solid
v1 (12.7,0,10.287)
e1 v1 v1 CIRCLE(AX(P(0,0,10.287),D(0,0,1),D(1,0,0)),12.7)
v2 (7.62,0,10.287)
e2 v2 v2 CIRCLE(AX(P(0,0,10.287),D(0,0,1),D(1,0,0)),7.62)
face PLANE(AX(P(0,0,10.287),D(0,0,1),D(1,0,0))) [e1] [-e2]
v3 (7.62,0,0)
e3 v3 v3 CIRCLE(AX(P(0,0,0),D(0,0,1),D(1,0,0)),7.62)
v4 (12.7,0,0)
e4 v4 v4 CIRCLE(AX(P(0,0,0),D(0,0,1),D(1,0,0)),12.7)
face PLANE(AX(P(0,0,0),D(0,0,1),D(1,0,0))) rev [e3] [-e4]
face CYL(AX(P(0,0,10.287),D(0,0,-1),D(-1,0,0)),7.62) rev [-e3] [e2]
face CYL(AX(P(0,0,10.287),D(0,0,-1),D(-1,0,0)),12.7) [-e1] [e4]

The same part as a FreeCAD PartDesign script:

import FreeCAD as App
import Part
import Sketcher
from FreeCAD import Vector
Q = App.Units.Quantity

doc = App.newDocument("Part")
body = doc.addObject("PartDesign::Body", "Body")

# Sketch on XY plane
sketch1 = body.newObject("Sketcher::SketchObject", "Sketch")
sketch1.AttachmentSupport = (doc.getObject("XY_Plane"), [""])
sketch1.MapMode = "FlatFace"
sketch1.addGeometry(Part.Circle(Vector(0, 0, 0), Vector(0, 0, 1), 13), False)
sketch1.addGeometry(Part.Circle(Vector(0, 0, 0), Vector(0, 0, 1), 8), False)
sketch1.addConstraint(Sketcher.Constraint("Coincident", 0, 3, -1, 1))
sketch1.addConstraint(Sketcher.Constraint("Coincident", 1, 3, -1, 1))
sketch1.addConstraint(Sketcher.Constraint("Diameter", 0, Q("1 in")))
sketch1.addConstraint(Sketcher.Constraint("Diameter", 1, Q("0.6 in")))
pad1 = body.newObject("PartDesign::Pad", "Pad")
pad1.Profile = sketch1
pad1.Length = Q("0.405 in")

doc.recompute()
